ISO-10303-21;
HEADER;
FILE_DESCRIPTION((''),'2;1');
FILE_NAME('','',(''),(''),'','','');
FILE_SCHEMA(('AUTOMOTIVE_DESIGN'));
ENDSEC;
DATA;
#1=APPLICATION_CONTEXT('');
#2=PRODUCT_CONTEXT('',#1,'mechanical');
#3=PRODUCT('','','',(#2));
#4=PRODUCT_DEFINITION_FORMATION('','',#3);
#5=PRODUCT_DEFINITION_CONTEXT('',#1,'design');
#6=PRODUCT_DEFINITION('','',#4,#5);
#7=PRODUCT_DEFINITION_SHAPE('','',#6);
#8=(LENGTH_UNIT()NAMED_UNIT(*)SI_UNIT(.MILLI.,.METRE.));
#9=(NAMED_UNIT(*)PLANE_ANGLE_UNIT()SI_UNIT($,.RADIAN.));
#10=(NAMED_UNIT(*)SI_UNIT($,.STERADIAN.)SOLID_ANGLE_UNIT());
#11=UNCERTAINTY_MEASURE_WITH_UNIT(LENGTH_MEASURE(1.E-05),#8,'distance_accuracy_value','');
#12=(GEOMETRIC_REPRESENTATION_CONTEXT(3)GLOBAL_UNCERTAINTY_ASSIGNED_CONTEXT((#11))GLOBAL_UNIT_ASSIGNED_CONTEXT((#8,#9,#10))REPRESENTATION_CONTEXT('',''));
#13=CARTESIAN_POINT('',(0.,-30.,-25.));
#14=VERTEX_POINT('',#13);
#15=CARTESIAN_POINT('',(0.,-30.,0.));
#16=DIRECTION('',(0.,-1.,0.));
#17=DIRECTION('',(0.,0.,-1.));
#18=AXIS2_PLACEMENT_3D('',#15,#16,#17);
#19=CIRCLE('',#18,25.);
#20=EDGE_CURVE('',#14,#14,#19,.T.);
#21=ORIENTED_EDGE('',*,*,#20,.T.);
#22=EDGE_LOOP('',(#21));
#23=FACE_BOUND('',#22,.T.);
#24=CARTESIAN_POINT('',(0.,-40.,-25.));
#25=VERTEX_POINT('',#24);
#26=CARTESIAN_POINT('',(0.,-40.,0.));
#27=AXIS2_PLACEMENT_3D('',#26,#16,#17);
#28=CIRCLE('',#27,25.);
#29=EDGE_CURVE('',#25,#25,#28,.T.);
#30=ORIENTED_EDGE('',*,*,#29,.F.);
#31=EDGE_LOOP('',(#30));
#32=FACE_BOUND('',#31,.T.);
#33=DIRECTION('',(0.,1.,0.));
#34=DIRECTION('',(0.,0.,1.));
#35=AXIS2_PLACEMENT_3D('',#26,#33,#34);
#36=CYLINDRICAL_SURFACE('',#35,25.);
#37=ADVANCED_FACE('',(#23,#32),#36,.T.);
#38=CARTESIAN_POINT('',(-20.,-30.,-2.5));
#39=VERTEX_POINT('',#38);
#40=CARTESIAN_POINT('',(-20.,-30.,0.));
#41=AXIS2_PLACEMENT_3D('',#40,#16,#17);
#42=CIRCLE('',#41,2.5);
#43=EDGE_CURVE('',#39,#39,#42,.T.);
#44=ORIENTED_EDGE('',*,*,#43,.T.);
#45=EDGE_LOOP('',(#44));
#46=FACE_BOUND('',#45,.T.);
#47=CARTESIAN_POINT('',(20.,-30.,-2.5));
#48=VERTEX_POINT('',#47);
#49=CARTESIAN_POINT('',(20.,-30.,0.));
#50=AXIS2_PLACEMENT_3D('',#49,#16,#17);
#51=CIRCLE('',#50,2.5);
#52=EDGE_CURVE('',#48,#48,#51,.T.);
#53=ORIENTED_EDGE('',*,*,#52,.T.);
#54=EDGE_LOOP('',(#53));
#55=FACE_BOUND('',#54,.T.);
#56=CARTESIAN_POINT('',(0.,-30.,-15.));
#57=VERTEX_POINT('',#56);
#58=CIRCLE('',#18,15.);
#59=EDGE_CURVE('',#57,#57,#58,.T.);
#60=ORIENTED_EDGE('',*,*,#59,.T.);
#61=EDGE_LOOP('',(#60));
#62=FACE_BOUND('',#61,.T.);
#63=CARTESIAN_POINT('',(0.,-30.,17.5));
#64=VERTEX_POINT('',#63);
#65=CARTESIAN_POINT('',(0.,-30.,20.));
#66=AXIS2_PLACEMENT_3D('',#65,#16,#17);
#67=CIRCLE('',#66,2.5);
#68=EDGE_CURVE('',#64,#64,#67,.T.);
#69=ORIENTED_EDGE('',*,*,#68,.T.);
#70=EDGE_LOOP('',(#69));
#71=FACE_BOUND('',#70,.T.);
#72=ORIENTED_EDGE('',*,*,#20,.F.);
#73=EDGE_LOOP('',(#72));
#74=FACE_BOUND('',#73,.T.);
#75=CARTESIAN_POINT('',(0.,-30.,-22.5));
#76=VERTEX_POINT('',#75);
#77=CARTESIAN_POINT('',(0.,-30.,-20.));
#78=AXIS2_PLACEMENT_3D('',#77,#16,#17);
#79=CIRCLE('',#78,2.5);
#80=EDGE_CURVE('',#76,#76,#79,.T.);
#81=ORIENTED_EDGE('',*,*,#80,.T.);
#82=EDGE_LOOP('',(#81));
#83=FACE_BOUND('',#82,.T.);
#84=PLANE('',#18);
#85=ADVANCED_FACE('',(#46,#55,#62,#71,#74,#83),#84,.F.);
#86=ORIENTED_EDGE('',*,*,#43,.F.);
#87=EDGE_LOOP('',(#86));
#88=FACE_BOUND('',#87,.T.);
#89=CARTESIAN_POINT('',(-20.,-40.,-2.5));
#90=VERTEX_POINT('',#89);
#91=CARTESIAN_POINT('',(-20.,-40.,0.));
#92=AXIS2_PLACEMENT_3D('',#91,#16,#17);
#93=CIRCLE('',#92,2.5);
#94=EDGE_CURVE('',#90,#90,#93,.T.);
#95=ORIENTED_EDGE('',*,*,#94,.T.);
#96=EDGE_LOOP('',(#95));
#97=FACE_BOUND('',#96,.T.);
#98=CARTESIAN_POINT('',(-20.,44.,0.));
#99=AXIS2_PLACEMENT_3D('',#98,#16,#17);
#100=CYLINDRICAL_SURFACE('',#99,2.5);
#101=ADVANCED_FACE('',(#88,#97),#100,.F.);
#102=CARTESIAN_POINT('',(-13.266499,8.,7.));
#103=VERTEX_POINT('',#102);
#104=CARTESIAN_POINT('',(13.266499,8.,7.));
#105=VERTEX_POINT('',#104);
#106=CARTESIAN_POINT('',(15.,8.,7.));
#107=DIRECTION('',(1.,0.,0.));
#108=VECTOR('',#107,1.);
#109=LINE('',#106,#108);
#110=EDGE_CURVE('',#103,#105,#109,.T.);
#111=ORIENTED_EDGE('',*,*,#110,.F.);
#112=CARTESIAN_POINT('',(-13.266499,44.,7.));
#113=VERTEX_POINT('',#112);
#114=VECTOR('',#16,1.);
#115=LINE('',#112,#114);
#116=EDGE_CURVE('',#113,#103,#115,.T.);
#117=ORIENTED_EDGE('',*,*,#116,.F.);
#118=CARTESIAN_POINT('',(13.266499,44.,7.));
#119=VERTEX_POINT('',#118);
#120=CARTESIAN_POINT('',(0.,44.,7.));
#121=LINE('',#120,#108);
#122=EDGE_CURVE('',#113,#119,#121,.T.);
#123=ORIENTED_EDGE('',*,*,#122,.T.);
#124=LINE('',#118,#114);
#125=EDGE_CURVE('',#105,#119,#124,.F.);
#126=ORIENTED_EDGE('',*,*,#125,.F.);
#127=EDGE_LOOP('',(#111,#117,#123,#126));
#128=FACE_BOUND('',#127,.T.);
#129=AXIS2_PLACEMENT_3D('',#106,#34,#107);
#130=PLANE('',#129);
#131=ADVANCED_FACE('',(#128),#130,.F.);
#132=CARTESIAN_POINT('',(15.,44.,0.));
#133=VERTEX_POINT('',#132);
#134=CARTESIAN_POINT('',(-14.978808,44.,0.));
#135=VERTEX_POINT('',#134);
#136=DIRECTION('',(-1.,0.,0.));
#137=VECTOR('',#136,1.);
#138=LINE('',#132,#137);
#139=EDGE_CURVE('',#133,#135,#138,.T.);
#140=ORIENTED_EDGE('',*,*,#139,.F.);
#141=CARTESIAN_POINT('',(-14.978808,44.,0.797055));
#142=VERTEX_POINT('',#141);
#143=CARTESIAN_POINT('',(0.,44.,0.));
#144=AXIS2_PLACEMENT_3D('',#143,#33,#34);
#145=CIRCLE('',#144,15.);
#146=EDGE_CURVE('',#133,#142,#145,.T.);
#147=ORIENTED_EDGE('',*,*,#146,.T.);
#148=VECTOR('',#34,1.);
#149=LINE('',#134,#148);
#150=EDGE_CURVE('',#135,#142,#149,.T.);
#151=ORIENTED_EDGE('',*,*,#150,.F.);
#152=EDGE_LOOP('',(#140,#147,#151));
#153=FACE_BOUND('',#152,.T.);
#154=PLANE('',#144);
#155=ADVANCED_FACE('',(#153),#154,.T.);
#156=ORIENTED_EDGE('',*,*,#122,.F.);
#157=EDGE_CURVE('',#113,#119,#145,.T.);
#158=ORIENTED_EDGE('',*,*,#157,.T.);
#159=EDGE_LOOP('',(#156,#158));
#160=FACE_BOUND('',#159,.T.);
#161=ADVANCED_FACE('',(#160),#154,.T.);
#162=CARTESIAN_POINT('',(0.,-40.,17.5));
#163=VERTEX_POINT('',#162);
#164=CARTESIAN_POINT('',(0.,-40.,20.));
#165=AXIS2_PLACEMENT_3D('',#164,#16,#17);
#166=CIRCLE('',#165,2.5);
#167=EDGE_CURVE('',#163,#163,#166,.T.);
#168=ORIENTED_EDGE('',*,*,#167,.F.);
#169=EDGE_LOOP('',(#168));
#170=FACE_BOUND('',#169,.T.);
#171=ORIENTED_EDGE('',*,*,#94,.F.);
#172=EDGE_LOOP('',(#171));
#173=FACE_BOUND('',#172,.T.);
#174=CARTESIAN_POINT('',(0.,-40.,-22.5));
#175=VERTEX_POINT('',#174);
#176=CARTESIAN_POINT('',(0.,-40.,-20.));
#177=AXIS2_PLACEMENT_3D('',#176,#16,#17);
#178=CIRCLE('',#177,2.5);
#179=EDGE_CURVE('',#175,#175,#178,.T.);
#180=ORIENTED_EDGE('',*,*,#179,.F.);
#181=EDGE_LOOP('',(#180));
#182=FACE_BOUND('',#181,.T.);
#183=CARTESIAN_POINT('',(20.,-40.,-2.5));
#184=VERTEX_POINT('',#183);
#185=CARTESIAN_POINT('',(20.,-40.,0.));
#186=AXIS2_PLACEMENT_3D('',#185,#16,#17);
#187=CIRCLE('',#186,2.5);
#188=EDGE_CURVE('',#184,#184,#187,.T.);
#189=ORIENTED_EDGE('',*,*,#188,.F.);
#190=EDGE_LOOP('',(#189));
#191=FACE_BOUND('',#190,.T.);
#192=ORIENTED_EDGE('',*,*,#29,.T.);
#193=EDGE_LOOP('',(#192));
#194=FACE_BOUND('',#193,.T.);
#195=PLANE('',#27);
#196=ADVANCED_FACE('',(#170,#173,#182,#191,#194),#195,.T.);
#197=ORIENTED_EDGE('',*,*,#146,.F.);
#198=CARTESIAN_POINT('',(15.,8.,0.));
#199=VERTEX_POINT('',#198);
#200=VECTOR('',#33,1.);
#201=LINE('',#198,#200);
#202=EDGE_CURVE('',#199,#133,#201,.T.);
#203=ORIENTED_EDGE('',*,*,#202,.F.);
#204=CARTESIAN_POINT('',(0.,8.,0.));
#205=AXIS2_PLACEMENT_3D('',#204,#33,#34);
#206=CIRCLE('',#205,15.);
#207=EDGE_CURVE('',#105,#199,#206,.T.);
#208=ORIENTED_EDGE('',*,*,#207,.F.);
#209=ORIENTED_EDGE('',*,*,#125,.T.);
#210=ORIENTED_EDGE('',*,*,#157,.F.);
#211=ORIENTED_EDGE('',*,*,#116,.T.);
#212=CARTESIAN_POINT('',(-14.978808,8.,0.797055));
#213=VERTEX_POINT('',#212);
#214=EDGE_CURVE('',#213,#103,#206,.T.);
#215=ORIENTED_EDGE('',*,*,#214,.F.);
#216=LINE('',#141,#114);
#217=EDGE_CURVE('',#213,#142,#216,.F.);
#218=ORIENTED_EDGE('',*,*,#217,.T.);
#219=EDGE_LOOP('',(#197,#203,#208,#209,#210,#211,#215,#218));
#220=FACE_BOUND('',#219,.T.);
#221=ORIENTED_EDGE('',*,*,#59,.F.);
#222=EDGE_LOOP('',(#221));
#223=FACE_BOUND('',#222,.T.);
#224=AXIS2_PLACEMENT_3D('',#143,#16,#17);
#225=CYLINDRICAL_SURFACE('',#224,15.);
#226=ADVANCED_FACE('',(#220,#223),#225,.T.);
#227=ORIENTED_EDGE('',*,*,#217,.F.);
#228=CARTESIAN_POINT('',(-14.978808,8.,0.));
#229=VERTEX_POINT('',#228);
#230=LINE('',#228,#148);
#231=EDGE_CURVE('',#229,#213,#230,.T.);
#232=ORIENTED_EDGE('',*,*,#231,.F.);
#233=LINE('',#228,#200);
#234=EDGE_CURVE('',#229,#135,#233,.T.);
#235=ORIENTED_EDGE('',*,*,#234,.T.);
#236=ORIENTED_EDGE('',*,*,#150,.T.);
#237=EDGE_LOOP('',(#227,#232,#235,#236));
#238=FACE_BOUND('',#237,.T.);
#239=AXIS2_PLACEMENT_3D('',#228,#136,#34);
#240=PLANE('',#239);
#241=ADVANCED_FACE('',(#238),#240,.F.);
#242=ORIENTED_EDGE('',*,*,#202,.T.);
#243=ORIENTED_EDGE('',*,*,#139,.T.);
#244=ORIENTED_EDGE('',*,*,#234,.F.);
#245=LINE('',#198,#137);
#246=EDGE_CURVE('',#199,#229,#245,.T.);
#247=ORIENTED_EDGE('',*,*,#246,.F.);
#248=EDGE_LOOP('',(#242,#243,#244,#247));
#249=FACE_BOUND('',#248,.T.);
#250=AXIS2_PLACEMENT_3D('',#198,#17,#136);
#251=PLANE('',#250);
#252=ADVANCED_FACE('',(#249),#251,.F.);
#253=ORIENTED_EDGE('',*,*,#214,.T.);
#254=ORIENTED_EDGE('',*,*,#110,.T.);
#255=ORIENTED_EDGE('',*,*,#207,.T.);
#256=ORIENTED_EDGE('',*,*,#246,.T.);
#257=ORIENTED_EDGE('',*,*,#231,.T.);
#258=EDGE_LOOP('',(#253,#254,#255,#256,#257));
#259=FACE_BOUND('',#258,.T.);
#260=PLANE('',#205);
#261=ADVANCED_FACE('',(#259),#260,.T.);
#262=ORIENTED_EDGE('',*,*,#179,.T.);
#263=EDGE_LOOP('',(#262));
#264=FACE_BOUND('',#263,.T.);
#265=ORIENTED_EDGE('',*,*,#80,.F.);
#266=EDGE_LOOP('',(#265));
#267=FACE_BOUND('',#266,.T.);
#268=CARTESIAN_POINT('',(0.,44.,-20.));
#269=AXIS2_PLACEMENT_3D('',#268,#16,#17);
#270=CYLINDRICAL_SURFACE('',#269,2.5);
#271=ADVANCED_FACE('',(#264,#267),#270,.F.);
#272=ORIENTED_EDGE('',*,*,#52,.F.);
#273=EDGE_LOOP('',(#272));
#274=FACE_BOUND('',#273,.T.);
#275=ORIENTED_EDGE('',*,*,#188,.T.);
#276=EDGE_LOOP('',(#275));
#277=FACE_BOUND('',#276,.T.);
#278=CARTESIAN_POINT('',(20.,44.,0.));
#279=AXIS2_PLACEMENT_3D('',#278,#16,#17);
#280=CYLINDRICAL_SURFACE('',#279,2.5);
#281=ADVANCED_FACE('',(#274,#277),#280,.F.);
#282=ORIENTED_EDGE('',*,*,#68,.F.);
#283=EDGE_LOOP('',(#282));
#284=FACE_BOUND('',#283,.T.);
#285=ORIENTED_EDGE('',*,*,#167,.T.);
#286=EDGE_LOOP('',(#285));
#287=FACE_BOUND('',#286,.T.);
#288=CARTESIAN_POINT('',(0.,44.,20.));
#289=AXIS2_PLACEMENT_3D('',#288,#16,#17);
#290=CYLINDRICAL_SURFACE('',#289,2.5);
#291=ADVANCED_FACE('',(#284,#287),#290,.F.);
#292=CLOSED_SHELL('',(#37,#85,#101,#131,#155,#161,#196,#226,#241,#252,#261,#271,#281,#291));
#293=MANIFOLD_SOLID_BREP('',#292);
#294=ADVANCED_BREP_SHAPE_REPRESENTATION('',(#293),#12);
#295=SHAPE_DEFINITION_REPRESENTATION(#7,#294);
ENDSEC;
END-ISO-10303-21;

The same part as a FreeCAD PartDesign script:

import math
import FreeCAD as App
import Part
import Sketcher
from FreeCAD import Vector
Q = App.Units.Quantity


def add_polygon(sketch, points):
    """Adds a closed chain of lines whose ends are joined by coincident constraints."""
    first, n = sketch.GeometryCount, len(points)
    for a, b in zip(points, points[1:] + points[:1]):
        sketch.addGeometry(Part.LineSegment(App.Vector(*a, 0), App.Vector(*b, 0)), False)
    for i in range(n):
        sketch.addConstraint(Sketcher.Constraint("Coincident", first + i, 2, first + (i + 1) % n, 1))

doc = App.newDocument("Part")
params = doc.addObject("Spreadsheet::Sheet", "Params")
for row, (alias, value) in enumerate([
    ("sketch1_diameter", "30 mm"),
    ("pad1_length", "44 mm"),
    ("sketch2_height", "7 mm"),
    ("pocket1_length", "36 mm"),
    ("sketch3_diameter", "30 mm"),
    ("pad2_length", "30 mm"),
    ("sketch4_diameter", "50 mm"),
    ("pad3_length", "10 mm"),
    ("sketch5_diameter", "5 mm"),
], start=1):
    params.set(f"A{row}", alias)
    params.set(f"B{row}", "=" + value)
    params.setAlias(f"B{row}", alias)

body = doc.addObject("PartDesign::Body", "Body")

sketch1 = body.newObject("Sketcher::SketchObject", "Sketch")
sketch1.AttachmentSupport = (doc.getObject("XZ_Plane"), [""])
sketch1.MapMode = "FlatFace"
sketch1.addGeometry(Part.Circle(Vector(0, 0, 0), Vector(0, 0, 1), 15), False)
sketch1.addConstraint([
    Sketcher.Constraint("Coincident", 0, 3, -1, 1),
    Sketcher.Constraint("Diameter", 0, Q("30 mm")),
])
sketch1.setExpression("Constraints[1]", "Params.sketch1_diameter")
pad1 = body.newObject("PartDesign::Pad", "Pad")
pad1.Profile = sketch1
pad1.setExpression("Length", "Params.pad1_length")
pad1.Reversed = True

sketch2 = body.newObject("Sketcher::SketchObject", "Sketch001")
sketch2.AttachmentSupport = (doc.getObject("XZ_Plane"), [""])
sketch2.MapMode = "FlatFace"
sketch2.AttachmentOffset = App.Placement(Vector(0, 0, -44), App.Rotation())
add_polygon(sketch2, [(-14.978808, 0), (-14.978808, 7), (15, 7), (15, 0)])
sketch2.addConstraint([
    Sketcher.Constraint("Vertical", 0),
    Sketcher.Constraint("Horizontal", 1),
    Sketcher.Constraint("Vertical", 2),
    Sketcher.Constraint("Horizontal", 3),
    Sketcher.Constraint("PointOnObject", 2, 2, -1),
    Sketcher.Constraint("DistanceY", 0, 1, 0, 2, Q("7 mm")),
    Sketcher.Constraint("DistanceX", -1, 1, 1, 2, Q("15 mm")),
    Sketcher.Constraint("DistanceX", 1, 1, 1, 2, Q("29.978808 mm")),
])
sketch2.setExpression("Constraints[9]", "Params.sketch2_height")
pocket1 = body.newObject("PartDesign::Pocket", "Pocket")
pocket1.Profile = sketch2
pocket1.setExpression("Length", "Params.pocket1_length")
pocket1.Reversed = True

sketch3 = body.newObject("Sketcher::SketchObject", "Sketch002")
sketch3.AttachmentSupport = (doc.getObject("XZ_Plane"), [""])
sketch3.MapMode = "FlatFace"
sketch3.AttachmentOffset = App.Placement(Vector(0, 0, 30), App.Rotation())
sketch3.addGeometry(Part.Circle(Vector(0, 0, 0), Vector(0, 0, 1), 15), False)
sketch3.addConstraint([
    Sketcher.Constraint("Coincident", 0, 3, -1, 1),
    Sketcher.Constraint("Diameter", 0, Q("30 mm")),
])
sketch3.setExpression("Constraints[1]", "Params.sketch3_diameter")
pad2 = body.newObject("PartDesign::Pad", "Pad001")
pad2.Profile = sketch3
pad2.setExpression("Length", "Params.pad2_length")
pad2.Reversed = True

sketch4 = body.newObject("Sketcher::SketchObject", "Sketch003")
sketch4.AttachmentSupport = (doc.getObject("XZ_Plane"), [""])
sketch4.MapMode = "FlatFace"
sketch4.AttachmentOffset = App.Placement(Vector(0, 0, 30), App.Rotation())
sketch4.addGeometry(Part.Circle(Vector(0, 0, 0), Vector(0, 0, 1), 25), False)
sketch4.addConstraint([
    Sketcher.Constraint("Coincident", 0, 3, -1, 1),
    Sketcher.Constraint("Diameter", 0, Q("50 mm")),
])
sketch4.setExpression("Constraints[1]", "Params.sketch4_diameter")
pad3 = body.newObject("PartDesign::Pad", "Pad002")
pad3.Profile = sketch4
pad3.setExpression("Length", "Params.pad3_length")

sketch5 = body.newObject("Sketcher::SketchObject", "Sketch004")
sketch5.AttachmentSupport = (doc.getObject("XZ_Plane"), [""])
sketch5.MapMode = "FlatFace"
sketch5.AttachmentOffset = App.Placement(Vector(0, 0, 40), App.Rotation())
sketch5.addGeometry([
    Part.ArcOfCircle(Part.Circle(Vector(0, 20, 0), Vector(0, 0, 1), 2.5), math.radians(90), math.radians(270)),
    Part.ArcOfCircle(Part.Circle(Vector(0, 20, 0), Vector(0, 0, 1), 2.5), math.radians(-90), math.radians(0)),
    Part.ArcOfCircle(Part.Circle(Vector(0, 20, 0), Vector(0, 0, 1), 2.5), math.radians(0), math.radians(90)),
    Part.Circle(Vector(20, 0, 0), Vector(0, 0, 1), 2.5),
    Part.Circle(Vector(0, -20, 0), Vector(0, 0, 1), 2.5),
    Part.Circle(Vector(-20, 0, 0), Vector(0, 0, 1), 2.5),
], False)
sketch5.addConstraint([
    Sketcher.Constraint("Tangent", 0, 2, 1, 1),
    Sketcher.Constraint("Tangent", 1, 2, 2, 1),
    Sketcher.Constraint("Tangent", 2, 2, 0, 1),
    Sketcher.Constraint("Equal", 2, 3),
    Sketcher.Constraint("Equal", 3, 4),
    Sketcher.Constraint("Equal", 4, 5),
    Sketcher.Constraint("Symmetric", 0, 3, 4, 3, -1, 1),
    Sketcher.Constraint("Symmetric", 3, 3, 5, 3, -1, 1),
    Sketcher.Constraint("PointOnObject", 0, 3, -2),
    Sketcher.Constraint("PointOnObject", 3, 3, -1),
    Sketcher.Constraint("PointOnObject", 0, 2, -2),
    Sketcher.Constraint("PointOnObject", 2, 2, -2),
    Sketcher.Constraint("Horizontal", 2, 3, 1, 2),
    Sketcher.Constraint("Diameter", 3, Q("5 mm")),
    Sketcher.Constraint("DistanceY", -1, 1, 0, 3, Q("20 mm")),
    Sketcher.Constraint("DistanceX", -1, 1, 3, 3, Q("20 mm")),
])
sketch5.setExpression("Constraints[13]", "Params.sketch5_diameter")
pocket2 = body.newObject("PartDesign::Pocket", "Pocket001")
pocket2.Profile = sketch5
pocket2.Type = "ThroughAll"

doc.recompute()
